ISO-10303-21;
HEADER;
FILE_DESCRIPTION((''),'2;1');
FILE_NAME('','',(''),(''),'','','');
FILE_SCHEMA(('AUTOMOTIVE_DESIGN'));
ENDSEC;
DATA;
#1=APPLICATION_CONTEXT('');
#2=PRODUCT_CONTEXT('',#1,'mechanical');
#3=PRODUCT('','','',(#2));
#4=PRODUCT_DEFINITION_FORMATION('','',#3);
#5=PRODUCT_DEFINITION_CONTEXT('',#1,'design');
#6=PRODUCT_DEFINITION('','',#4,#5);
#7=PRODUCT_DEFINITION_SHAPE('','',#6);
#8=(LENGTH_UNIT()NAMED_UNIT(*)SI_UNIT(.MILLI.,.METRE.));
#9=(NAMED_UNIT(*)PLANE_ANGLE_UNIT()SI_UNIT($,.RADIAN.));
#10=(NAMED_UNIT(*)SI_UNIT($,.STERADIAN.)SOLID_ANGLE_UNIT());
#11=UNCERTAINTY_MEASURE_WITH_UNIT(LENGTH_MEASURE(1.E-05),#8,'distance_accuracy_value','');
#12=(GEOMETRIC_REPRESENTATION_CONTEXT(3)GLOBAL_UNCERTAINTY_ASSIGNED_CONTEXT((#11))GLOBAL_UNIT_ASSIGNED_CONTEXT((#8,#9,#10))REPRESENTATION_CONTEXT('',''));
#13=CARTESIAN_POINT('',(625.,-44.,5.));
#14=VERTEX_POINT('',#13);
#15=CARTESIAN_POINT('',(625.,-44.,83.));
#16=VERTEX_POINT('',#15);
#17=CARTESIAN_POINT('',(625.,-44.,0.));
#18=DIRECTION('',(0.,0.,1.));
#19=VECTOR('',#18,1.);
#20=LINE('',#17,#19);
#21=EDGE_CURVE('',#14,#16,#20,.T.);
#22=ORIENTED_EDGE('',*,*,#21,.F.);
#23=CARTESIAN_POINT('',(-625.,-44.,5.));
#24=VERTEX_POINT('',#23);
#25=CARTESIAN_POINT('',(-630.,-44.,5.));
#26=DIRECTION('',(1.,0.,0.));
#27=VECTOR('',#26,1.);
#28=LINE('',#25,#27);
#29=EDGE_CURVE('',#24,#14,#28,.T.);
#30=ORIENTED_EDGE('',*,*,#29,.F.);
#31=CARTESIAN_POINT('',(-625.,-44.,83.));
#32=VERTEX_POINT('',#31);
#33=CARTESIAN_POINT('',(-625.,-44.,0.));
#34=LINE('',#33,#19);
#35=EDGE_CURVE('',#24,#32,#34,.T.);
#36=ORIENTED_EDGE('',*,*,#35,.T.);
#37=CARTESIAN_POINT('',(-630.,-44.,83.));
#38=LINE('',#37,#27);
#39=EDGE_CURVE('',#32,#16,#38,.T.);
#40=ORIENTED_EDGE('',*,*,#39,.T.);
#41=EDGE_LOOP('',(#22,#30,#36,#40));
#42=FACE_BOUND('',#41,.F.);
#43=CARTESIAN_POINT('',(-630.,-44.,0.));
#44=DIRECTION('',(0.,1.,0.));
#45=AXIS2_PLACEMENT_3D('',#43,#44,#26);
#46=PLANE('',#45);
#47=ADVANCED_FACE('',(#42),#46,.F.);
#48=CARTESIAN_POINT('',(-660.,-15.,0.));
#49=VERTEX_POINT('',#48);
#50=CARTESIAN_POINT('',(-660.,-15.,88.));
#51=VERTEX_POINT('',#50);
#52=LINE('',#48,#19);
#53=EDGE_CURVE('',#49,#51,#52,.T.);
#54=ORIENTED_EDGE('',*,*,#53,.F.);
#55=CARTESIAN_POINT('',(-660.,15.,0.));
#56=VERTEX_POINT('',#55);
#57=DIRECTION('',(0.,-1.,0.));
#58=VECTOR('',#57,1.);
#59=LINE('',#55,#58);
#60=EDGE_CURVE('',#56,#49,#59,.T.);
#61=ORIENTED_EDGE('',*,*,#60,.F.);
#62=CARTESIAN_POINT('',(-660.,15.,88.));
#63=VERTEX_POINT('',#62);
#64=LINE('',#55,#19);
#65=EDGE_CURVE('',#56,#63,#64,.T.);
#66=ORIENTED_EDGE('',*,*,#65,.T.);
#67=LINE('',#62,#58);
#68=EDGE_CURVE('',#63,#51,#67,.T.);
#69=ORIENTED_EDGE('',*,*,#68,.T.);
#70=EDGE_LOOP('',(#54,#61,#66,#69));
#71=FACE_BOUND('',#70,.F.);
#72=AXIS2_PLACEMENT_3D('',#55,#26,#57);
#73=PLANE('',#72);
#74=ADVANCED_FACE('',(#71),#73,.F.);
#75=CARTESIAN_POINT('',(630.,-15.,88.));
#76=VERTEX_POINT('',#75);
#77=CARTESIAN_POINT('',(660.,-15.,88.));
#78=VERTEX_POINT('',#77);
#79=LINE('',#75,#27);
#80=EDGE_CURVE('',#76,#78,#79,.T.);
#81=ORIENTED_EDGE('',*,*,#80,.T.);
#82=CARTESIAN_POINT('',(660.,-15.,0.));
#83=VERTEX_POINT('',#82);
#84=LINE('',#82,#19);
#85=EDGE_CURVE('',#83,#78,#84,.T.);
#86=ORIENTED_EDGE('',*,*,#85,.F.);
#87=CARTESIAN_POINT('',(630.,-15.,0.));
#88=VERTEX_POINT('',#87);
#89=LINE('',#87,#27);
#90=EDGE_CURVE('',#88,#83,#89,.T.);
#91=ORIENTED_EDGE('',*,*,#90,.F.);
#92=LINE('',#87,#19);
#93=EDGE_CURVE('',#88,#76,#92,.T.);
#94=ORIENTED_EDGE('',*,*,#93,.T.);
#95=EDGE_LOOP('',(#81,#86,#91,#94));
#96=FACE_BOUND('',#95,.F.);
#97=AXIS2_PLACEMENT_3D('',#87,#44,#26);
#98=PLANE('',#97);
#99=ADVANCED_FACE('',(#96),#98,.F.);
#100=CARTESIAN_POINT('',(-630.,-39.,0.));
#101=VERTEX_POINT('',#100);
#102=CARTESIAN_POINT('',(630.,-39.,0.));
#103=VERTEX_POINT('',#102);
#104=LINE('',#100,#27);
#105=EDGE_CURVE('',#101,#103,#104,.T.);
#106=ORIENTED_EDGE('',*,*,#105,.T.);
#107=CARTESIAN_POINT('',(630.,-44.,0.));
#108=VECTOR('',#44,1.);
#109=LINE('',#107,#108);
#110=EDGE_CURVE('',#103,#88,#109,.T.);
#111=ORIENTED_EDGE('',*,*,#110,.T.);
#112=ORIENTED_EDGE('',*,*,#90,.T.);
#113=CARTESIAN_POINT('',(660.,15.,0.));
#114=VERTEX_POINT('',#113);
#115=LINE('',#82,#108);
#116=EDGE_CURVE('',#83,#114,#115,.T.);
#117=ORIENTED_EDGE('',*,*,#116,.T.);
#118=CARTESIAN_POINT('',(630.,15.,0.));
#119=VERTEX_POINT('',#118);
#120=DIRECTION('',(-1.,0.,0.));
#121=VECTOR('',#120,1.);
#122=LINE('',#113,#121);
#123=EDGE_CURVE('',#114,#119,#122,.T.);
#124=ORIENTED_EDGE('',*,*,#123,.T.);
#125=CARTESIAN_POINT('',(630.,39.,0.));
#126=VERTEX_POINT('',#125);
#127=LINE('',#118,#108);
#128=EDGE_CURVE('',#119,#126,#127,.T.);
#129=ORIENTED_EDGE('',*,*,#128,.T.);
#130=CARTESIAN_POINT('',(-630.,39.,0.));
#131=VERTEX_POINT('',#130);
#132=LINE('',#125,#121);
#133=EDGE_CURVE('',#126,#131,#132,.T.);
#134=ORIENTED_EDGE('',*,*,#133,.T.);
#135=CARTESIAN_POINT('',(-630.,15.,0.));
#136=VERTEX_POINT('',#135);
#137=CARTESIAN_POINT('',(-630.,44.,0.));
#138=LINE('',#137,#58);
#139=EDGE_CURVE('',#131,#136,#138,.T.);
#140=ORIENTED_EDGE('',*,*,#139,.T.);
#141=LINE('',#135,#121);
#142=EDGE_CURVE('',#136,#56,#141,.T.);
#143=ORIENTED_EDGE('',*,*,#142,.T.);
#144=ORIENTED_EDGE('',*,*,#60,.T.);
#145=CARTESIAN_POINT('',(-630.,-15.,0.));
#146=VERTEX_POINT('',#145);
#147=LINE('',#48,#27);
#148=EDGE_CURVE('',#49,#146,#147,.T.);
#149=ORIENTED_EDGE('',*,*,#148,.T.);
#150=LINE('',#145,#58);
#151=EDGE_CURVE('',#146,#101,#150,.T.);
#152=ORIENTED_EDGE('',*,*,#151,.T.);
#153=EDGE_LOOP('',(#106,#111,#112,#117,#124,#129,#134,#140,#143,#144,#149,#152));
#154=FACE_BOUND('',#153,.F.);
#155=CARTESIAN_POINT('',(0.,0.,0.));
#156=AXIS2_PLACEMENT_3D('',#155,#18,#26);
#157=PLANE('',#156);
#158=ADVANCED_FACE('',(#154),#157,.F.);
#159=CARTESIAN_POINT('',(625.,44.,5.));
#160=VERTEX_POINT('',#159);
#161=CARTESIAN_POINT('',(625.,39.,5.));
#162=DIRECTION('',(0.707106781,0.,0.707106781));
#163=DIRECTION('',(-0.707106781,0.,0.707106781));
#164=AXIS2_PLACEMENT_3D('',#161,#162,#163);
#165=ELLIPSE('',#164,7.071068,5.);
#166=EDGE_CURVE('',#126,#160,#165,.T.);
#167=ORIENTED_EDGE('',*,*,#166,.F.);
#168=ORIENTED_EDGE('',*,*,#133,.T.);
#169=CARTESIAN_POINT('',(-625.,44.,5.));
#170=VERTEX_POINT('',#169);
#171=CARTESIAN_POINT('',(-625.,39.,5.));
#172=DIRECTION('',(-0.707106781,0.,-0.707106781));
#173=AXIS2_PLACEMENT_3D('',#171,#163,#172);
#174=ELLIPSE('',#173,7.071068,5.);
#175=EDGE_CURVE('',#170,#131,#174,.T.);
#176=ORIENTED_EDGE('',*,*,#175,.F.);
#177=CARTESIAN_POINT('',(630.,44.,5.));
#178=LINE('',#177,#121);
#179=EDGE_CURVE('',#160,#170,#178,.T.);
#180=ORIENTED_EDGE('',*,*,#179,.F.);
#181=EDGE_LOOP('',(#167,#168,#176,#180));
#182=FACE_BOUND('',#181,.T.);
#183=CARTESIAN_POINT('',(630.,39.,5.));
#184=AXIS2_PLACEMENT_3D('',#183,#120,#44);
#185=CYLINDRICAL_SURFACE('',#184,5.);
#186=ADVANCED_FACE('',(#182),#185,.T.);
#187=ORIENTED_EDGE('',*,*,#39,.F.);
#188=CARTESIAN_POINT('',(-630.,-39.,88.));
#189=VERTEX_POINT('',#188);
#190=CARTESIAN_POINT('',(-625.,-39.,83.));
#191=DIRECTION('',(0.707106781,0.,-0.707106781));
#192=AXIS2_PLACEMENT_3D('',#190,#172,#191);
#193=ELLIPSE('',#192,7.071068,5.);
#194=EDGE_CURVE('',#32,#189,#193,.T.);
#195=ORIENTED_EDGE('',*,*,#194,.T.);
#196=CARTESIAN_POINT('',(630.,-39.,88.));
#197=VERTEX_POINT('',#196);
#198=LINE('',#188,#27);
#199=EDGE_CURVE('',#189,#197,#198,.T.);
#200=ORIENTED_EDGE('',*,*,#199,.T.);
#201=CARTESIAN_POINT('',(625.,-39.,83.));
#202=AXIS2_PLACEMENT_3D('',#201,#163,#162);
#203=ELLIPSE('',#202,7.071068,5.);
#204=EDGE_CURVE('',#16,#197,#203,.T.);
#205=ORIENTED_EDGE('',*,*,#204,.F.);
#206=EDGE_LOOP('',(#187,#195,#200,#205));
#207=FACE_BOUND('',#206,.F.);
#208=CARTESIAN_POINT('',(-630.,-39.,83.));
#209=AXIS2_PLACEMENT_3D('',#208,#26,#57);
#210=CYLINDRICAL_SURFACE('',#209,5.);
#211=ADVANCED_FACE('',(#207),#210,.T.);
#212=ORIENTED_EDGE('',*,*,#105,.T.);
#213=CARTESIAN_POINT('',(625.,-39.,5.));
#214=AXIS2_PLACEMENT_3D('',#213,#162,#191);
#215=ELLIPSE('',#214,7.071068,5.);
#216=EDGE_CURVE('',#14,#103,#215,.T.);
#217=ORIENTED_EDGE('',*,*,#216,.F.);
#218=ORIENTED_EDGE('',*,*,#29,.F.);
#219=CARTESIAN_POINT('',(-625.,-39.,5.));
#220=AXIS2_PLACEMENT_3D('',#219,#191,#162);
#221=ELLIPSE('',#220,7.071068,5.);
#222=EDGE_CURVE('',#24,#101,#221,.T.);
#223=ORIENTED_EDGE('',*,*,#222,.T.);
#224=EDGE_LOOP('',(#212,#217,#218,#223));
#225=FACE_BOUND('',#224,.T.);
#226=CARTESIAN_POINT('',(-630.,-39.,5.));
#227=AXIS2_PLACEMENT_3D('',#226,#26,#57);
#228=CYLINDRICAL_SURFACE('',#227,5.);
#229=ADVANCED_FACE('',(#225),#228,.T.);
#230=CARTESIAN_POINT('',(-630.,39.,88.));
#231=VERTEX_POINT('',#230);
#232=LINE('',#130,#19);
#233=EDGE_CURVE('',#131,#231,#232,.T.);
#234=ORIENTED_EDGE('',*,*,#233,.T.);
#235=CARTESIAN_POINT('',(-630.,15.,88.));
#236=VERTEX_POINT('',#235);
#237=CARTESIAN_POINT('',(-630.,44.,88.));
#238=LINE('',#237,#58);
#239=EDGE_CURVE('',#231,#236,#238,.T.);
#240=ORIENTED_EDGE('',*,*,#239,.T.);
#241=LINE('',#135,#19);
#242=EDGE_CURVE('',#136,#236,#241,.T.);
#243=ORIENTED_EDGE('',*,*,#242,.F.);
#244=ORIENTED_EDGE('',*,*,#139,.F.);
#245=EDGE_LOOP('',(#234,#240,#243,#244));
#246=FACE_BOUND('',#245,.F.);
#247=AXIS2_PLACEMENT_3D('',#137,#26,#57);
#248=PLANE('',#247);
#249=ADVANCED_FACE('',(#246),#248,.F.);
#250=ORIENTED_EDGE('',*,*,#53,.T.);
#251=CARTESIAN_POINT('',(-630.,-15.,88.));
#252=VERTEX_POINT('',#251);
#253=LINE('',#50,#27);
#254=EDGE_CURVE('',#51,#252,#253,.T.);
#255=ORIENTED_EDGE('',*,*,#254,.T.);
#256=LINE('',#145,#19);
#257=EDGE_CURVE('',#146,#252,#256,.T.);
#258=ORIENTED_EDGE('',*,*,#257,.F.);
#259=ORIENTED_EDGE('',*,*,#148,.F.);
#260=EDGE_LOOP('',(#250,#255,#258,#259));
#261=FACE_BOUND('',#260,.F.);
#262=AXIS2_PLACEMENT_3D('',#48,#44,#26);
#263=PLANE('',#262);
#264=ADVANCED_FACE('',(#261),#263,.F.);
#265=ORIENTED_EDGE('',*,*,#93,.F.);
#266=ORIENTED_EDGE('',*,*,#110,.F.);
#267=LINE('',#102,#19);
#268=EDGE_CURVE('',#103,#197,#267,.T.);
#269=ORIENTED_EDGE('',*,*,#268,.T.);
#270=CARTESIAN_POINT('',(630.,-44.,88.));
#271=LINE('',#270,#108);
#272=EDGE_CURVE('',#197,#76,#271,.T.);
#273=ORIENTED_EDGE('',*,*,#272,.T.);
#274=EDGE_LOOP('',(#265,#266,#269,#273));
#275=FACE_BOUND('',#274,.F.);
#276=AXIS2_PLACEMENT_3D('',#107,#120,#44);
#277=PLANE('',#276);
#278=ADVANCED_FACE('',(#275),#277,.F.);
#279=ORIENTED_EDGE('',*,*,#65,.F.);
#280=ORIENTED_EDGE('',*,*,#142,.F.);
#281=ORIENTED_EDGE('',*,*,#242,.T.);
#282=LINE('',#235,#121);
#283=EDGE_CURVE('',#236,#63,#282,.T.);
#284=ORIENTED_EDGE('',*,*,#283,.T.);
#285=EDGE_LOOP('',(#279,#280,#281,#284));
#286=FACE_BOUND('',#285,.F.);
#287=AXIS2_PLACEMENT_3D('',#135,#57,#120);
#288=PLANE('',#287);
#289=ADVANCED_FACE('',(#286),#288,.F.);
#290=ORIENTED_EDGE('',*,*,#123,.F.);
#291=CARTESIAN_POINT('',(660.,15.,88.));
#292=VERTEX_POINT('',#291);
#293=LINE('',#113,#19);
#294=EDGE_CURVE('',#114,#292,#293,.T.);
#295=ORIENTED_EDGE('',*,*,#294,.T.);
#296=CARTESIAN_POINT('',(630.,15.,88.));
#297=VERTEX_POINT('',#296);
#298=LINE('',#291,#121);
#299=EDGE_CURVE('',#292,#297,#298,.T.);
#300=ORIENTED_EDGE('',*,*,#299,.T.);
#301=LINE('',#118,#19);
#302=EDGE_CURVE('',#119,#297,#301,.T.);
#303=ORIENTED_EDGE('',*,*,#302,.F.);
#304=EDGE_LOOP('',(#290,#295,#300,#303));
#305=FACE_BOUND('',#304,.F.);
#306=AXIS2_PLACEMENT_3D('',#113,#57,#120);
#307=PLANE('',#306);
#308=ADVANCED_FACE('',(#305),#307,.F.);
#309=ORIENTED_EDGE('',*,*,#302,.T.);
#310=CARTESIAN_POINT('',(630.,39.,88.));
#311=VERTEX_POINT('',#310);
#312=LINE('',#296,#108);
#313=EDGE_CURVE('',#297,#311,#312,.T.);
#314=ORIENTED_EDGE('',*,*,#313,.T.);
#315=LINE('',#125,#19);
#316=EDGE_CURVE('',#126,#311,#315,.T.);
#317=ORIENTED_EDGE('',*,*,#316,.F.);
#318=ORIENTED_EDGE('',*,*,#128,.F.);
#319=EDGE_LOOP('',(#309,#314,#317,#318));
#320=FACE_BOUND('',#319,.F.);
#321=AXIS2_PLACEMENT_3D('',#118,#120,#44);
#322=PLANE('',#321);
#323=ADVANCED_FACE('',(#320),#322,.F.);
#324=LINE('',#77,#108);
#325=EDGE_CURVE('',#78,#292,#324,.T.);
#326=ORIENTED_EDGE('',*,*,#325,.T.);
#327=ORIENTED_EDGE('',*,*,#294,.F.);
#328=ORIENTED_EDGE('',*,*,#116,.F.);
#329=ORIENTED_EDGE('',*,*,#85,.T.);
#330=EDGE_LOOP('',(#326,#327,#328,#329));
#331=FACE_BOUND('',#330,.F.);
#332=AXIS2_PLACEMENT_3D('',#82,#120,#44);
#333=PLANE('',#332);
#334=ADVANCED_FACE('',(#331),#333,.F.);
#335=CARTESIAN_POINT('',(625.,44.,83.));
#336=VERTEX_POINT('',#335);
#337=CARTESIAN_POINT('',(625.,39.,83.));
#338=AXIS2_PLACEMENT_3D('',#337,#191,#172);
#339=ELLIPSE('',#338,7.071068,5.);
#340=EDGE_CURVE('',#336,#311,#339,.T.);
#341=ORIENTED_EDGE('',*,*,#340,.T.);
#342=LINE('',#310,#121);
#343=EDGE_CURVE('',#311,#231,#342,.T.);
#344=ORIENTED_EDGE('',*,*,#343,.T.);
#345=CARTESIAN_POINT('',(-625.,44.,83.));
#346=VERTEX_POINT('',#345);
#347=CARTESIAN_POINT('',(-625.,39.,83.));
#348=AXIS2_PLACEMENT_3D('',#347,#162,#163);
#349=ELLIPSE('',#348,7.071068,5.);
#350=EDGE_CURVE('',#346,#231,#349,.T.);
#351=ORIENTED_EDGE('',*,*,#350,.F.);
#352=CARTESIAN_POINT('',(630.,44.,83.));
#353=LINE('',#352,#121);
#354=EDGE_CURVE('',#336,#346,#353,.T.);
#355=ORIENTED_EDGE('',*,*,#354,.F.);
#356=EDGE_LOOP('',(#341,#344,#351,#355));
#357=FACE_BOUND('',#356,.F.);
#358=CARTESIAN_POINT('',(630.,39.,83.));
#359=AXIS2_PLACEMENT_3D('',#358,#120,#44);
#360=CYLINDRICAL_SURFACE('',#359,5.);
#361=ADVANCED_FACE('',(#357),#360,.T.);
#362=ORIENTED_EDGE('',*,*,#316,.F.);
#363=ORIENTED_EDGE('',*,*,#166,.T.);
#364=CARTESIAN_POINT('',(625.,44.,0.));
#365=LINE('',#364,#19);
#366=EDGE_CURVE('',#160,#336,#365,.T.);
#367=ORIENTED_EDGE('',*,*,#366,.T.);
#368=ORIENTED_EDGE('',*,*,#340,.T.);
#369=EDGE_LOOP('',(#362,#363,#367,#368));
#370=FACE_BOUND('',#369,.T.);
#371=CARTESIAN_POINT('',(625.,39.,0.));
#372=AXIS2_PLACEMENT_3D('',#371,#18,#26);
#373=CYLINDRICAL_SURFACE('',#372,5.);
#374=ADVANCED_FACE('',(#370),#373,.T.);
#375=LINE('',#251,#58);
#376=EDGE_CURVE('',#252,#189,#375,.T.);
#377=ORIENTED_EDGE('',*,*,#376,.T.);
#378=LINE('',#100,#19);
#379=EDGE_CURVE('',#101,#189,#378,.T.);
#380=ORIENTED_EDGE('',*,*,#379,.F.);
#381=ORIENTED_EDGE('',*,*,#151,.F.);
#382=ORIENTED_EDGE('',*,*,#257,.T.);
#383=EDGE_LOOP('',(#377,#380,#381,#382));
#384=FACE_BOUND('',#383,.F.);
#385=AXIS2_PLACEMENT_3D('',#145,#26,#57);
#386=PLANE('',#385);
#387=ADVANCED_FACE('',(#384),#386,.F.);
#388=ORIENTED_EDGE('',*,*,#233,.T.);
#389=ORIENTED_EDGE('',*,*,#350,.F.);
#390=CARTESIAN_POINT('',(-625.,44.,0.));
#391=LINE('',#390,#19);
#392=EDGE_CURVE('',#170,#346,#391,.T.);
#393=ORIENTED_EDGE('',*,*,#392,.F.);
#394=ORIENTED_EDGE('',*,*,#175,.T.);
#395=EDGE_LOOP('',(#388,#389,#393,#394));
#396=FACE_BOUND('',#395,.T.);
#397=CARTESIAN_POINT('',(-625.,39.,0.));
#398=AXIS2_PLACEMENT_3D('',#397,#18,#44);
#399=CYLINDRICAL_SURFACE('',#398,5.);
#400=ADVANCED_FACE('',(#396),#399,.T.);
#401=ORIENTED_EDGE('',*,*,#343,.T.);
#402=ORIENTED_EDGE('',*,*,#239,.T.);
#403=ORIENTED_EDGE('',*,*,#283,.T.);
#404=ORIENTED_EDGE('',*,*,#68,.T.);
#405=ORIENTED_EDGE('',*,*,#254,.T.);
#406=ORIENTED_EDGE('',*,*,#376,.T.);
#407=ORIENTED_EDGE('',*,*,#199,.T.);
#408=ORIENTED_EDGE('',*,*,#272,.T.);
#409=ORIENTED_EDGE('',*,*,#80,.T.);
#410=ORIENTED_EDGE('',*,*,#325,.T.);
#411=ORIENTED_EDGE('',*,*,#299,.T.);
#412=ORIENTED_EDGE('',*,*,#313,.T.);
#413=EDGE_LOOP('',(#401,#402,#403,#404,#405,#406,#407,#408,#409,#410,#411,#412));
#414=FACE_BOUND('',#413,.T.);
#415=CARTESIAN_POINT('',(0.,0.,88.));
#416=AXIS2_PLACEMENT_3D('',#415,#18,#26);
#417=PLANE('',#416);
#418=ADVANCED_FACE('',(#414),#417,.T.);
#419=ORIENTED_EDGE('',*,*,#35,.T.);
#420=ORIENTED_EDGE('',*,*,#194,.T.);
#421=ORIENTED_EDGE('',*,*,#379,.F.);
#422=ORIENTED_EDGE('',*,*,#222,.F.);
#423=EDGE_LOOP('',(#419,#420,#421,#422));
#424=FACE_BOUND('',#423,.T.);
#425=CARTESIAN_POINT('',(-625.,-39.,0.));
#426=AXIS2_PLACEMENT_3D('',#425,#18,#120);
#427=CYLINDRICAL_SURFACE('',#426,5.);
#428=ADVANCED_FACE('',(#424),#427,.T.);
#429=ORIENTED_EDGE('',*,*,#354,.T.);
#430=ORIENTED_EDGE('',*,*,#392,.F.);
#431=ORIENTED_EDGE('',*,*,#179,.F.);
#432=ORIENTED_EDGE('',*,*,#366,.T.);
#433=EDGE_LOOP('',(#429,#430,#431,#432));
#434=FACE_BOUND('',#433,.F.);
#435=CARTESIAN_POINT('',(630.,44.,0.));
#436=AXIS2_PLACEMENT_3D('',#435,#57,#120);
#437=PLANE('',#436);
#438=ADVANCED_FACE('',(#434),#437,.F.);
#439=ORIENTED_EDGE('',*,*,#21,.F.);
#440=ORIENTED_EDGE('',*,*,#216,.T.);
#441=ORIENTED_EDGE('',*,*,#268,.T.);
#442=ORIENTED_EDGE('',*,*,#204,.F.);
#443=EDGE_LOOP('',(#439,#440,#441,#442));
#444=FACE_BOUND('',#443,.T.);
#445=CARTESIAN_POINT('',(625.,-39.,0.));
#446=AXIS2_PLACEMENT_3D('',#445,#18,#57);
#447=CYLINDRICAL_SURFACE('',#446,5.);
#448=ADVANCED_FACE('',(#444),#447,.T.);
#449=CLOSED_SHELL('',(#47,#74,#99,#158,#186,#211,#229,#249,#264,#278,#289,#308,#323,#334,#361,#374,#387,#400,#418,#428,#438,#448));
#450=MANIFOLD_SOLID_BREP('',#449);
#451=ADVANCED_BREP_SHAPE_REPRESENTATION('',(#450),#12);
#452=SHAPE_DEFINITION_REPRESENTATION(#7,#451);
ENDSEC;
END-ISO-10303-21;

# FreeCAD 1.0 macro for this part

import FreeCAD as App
import Part
import Sketcher
from FreeCAD import Vector
Q = App.Units.Quantity


def edges_at(feature, points):
    """Names of the edges that pass closest to the given points."""
    edges = feature.Shape.Edges
    near = lambda p: min(range(len(edges)), key=lambda i: edges[i].distToShape(Part.Vertex(*p))[0])
    return sorted({f"Edge{near(p) + 1}" for p in points})


def add_polygon(sketch, points):
    """Adds a closed chain of lines whose ends are joined by coincident constraints."""
    first, n = sketch.GeometryCount, len(points)
    for a, b in zip(points, points[1:] + points[:1]):
        sketch.addGeometry(Part.LineSegment(App.Vector(*a, 0), App.Vector(*b, 0)), False)
    for i in range(n):
        sketch.addConstraint(Sketcher.Constraint("Coincident", first + i, 2, first + (i + 1) % n, 1))

doc = App.newDocument("Part")
body = doc.addObject("PartDesign::Body", "Body")

# Sketch on XY plane
sketch1 = doc.addObject("Sketcher::SketchObject", "Sketch")
body.addObject(sketch1)
sketch1.AttachmentSupport = (doc.XY_Plane, [""])
sketch1.MapMode = "FlatFace"
add_polygon(sketch1, [(-630, -15), (-630, -44), (630, -44), (630, -15), (660, -15), (660, 15), (630, 15), (630, 44), (-630, 44), (-630, 15), (-660, 15), (-660, -15)])  # lines 0-11
sketch1.addConstraint(Sketcher.Constraint("Vertical", 0))
sketch1.addConstraint(Sketcher.Constraint("Horizontal", 1))
sketch1.addConstraint(Sketcher.Constraint("Vertical", 2))
sketch1.addConstraint(Sketcher.Constraint("Horizontal", 3))
sketch1.addConstraint(Sketcher.Constraint("Vertical", 4))
sketch1.addConstraint(Sketcher.Constraint("Horizontal", 5))
sketch1.addConstraint(Sketcher.Constraint("Vertical", 6))
sketch1.addConstraint(Sketcher.Constraint("Horizontal", 7))
sketch1.addConstraint(Sketcher.Constraint("Vertical", 8))
sketch1.addConstraint(Sketcher.Constraint("Horizontal", 9))
sketch1.addConstraint(Sketcher.Constraint("Vertical", 10))
sketch1.addConstraint(Sketcher.Constraint("Horizontal", 11))
sketch1.addConstraint(Sketcher.Constraint("Symmetric", 0, 2, 6, 2, -1, 1))
sketch1.addConstraint(Sketcher.Constraint("Symmetric", 2, 2, 8, 2, -1, 1))
sketch1.addConstraint(Sketcher.Constraint("Symmetric", 4, 2, 10, 2, -1, 1))
sketch1.addConstraint(Sketcher.Constraint("Symmetric", 5, 2, 8, 2, -2))
sketch1.addConstraint(Sketcher.Constraint("Equal", 11, 4))
sketch1.addConstraint(Sketcher.Constraint("DistanceX", 1, 1, 1, 2, Q("1260 mm")))
sketch1.addConstraint(Sketcher.Constraint("DistanceX", 3, 1, 3, 2, Q("30 mm")))
sketch1.addConstraint(Sketcher.Constraint("DistanceY", 0, 2, 0, 1, Q("29 mm")))
pad1 = doc.addObject("PartDesign::Pad", "Pad")
body.addObject(pad1)
pad1.Profile = sketch1
pad1.Length = 88
doc.recompute()

fillet = doc.addObject("PartDesign::Fillet", "Fillet")
body.addObject(fillet)
fillet.Base = (pad1, edges_at(pad1, [
    (0, -44, 0),
    (0, -44, 88),
    (0, 44, 88),
    (630, -44, 44),
    (630, 44, 44),
    (0, 44, 0),
    (-630, 44, 44),
    (-630, -44, 44),
]))
fillet.Radius = 5

doc.recompute()
